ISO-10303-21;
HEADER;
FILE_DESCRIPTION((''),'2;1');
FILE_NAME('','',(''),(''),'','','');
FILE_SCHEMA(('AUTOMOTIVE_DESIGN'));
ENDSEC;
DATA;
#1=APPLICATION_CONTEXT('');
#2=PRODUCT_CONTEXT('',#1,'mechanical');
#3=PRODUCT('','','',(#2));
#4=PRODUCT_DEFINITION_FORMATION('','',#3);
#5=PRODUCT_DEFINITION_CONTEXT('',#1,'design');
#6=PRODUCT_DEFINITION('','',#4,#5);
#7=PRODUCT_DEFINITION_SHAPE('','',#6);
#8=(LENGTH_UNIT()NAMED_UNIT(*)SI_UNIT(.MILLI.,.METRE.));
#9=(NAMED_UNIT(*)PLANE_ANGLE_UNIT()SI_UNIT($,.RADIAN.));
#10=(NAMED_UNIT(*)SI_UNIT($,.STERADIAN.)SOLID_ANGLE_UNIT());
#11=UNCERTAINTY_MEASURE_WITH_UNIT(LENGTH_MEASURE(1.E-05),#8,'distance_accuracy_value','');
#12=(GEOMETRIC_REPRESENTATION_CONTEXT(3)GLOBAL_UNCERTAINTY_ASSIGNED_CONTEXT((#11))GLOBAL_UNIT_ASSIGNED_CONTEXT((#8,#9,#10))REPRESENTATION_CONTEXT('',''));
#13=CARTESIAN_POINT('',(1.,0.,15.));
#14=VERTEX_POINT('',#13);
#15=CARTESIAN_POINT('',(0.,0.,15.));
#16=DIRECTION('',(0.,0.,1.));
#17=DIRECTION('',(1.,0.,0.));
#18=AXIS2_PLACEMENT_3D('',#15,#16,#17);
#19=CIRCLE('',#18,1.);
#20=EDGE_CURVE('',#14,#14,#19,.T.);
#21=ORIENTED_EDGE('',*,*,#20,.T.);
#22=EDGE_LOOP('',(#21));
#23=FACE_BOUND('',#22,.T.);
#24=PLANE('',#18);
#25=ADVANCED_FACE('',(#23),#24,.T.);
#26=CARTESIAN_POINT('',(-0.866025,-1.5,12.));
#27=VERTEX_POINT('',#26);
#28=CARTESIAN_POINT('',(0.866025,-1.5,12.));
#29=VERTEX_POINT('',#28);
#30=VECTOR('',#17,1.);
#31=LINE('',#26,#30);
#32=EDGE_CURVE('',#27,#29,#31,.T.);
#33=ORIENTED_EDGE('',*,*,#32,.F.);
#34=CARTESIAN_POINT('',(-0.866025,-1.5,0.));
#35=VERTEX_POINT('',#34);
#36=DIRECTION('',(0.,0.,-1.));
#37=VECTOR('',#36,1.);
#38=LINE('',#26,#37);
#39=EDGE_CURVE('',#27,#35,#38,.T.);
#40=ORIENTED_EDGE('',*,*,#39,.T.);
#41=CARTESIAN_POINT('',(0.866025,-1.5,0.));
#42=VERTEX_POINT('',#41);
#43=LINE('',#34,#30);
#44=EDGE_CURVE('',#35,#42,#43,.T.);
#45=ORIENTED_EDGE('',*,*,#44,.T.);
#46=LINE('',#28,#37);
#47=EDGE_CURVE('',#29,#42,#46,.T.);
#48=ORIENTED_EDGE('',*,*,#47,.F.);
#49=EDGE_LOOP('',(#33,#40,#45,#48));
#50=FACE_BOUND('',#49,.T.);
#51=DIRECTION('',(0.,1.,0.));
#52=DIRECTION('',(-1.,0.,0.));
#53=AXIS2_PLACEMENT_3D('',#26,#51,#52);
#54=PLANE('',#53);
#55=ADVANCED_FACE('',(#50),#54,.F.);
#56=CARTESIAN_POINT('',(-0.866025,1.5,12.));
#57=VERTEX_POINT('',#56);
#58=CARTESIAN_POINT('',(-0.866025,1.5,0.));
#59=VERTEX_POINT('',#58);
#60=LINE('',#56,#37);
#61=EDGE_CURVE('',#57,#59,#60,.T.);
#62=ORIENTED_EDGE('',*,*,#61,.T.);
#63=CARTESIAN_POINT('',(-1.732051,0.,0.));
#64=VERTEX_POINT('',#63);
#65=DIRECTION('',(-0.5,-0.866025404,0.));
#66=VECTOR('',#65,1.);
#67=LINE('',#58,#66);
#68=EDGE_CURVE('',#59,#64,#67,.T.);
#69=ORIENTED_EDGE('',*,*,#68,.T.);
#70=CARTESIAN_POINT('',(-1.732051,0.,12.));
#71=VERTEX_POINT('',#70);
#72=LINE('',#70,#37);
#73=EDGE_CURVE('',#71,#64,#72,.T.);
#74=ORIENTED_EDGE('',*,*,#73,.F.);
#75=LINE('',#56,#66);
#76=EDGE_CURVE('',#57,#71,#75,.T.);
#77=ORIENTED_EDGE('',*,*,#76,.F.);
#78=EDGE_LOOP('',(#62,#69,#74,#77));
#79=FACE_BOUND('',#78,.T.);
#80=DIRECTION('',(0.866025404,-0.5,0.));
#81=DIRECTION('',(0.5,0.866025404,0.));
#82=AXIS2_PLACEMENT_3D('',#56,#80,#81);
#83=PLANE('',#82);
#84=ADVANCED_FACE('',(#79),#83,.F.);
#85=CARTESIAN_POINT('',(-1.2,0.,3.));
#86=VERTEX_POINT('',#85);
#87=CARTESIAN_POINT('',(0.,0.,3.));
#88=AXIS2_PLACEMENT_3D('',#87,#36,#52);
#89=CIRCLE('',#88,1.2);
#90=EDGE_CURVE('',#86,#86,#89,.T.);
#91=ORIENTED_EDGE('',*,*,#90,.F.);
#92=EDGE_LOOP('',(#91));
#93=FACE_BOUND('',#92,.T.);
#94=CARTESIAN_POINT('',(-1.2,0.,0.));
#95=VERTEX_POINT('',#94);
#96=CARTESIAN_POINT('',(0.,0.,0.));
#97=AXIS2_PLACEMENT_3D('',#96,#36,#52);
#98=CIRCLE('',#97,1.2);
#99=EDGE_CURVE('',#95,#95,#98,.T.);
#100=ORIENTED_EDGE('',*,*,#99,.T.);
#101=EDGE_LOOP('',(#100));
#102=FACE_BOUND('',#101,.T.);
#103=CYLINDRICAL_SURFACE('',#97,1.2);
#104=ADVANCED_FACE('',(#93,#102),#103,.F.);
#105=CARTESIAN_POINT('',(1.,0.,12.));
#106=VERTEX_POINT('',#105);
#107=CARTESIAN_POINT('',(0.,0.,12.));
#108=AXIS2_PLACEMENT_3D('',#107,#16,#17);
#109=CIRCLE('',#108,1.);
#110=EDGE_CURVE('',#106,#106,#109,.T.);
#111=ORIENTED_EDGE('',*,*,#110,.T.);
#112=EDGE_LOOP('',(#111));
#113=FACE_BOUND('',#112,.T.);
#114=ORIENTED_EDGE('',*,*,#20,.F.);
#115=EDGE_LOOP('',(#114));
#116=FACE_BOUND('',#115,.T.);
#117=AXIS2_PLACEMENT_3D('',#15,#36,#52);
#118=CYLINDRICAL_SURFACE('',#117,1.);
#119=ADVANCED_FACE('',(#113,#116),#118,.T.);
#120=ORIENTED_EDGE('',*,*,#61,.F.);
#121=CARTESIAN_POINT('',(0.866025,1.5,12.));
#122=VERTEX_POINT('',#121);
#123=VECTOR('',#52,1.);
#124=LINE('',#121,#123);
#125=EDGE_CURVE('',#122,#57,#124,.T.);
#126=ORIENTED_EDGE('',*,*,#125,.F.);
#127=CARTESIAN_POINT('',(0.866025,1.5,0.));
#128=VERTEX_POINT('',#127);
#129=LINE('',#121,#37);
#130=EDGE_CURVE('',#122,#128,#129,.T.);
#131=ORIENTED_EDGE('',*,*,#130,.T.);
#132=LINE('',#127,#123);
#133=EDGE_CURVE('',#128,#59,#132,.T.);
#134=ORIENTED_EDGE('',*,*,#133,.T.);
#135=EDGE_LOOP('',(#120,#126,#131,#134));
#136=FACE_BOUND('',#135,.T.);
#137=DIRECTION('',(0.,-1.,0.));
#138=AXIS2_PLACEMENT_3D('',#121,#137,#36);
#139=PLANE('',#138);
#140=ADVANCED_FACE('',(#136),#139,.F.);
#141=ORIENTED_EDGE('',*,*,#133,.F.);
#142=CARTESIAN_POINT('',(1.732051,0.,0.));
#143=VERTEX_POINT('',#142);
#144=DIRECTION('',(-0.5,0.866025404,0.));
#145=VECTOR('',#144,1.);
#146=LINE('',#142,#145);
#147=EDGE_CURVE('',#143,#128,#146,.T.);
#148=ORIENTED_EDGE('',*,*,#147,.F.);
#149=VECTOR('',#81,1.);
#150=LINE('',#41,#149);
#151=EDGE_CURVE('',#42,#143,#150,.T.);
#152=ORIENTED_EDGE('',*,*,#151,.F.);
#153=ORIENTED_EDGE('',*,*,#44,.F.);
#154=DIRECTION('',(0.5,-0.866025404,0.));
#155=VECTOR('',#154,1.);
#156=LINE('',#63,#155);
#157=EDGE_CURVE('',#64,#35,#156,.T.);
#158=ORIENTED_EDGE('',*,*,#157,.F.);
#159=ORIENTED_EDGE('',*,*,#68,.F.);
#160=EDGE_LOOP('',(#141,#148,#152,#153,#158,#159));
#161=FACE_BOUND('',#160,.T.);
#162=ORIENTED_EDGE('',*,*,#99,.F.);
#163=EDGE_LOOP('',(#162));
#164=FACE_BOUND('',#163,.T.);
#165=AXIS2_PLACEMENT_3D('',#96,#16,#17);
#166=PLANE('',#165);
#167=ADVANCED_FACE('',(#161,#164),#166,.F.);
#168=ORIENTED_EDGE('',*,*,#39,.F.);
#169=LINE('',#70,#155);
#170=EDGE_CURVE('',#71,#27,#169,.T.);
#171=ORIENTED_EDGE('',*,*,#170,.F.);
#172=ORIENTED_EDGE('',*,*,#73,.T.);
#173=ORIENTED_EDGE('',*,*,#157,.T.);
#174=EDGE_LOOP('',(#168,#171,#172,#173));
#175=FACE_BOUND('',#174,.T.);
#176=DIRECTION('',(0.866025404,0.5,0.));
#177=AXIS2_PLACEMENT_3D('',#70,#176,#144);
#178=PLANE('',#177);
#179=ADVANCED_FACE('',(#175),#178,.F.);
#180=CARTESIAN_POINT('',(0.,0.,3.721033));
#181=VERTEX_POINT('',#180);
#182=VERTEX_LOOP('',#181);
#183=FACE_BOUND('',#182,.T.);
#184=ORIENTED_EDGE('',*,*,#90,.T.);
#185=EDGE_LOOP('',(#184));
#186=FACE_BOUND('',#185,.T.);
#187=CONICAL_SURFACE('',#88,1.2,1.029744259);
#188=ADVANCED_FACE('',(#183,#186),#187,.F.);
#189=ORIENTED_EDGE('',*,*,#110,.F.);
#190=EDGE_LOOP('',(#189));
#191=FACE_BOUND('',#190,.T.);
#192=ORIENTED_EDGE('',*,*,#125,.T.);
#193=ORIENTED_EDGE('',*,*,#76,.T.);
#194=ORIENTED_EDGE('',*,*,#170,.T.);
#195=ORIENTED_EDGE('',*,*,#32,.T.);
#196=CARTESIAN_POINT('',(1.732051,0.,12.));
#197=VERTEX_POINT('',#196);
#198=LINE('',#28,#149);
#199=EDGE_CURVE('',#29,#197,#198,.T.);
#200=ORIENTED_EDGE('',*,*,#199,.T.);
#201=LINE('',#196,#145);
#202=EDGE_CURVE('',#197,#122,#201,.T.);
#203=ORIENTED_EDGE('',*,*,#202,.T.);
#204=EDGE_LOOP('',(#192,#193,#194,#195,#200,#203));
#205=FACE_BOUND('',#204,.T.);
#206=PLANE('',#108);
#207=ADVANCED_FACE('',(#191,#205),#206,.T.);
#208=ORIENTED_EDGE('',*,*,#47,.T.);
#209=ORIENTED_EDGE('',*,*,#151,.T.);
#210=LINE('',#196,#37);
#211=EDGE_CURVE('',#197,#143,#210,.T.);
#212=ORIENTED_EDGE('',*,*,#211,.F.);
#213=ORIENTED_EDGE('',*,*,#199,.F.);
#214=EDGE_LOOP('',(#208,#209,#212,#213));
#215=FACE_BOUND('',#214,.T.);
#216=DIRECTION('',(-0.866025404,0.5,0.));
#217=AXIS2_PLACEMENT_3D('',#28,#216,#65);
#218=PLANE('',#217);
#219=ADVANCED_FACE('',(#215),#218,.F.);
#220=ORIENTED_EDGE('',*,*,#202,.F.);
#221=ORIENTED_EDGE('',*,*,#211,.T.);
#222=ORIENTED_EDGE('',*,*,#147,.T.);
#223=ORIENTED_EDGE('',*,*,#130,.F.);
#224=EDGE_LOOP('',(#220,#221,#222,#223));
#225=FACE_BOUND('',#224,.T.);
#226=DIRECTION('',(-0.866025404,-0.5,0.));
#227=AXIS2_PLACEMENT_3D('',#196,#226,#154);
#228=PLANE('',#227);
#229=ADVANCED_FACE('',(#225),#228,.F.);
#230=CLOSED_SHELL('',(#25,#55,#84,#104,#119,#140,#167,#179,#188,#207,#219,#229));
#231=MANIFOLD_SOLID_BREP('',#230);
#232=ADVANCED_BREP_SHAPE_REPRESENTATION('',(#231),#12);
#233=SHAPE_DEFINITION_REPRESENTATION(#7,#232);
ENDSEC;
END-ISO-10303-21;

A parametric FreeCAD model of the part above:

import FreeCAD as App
import Part
import Sketcher
from FreeCAD import Vector
Q = App.Units.Quantity


def add_polygon(sketch, points):
    """Adds a closed chain of lines whose ends are joined by coincident constraints."""
    first, n = sketch.GeometryCount, len(points)
    for a, b in zip(points, points[1:] + points[:1]):
        sketch.addGeometry(Part.LineSegment(App.Vector(*a, 0), App.Vector(*b, 0)), False)
    for i in range(n):
        sketch.addConstraint(Sketcher.Constraint("Coincident", first + i, 2, first + (i + 1) % n, 1))

doc = App.newDocument("Part")
params = doc.addObject("Spreadsheet::Sheet", "Params")
for row, (alias, value) in enumerate([
    ("pad1_length", "12 mm"),
    ("sketch2_diameter", "2 mm"),
    ("pad2_length", "3 mm"),
    ("sketch3_diameter", "2.4 mm"),
    ("hole_diameter", "2.4 mm"),
    ("hole_depth", "3 mm"),
], start=1):
    params.set(f"A{row}", alias)
    params.set(f"B{row}", "=" + value)
    params.setAlias(f"B{row}", alias)

body = doc.addObject("PartDesign::Body", "Body")

sketch1 = body.newObject("Sketcher::SketchObject", "Sketch")
sketch1.AttachmentSupport = (doc.getObject("XY_Plane"), [""])
sketch1.MapMode = "FlatFace"
add_polygon(sketch1, [(0.866025, -1.5), (1.732051, 0), (0.866025, 1.5), (-0.866025, 1.5), (-1.732051, 0), (-0.866025, -1.5)])
sketch1.addConstraint(Sketcher.Constraint("Horizontal", 2))
sketch1.addConstraint(Sketcher.Constraint("Horizontal", 5))
sketch1.addConstraint(Sketcher.Constraint("Symmetric", 0, 2, 3, 2, -1, 1))
sketch1.addConstraint(Sketcher.Constraint("Symmetric", 1, 2, 4, 2, -1, 1))
sketch1.addConstraint(Sketcher.Constraint("PointOnObject", 0, 2, -1))
sketch1.addConstraint(Sketcher.Constraint("Parallel", 0, 3))
sketch1.addConstraint(Sketcher.Constraint("Vertical", 2, 2, 4, 2))
sketch1.addConstraint(Sketcher.Constraint("Angle", 0, Q("60 deg")))
sketch1.addConstraint(Sketcher.Constraint("DistanceY", 4, 2, 2, 2, Q("3 mm")))
sketch1.addConstraint(Sketcher.Constraint("DistanceX", 2, 2, 2, 1, Q("1.732051 mm")))
pad1 = body.newObject("PartDesign::Pad", "Pad")
pad1.Profile = sketch1
pad1.setExpression("Length", "Params.pad1_length")

sketch2 = body.newObject("Sketcher::SketchObject", "Sketch001")
sketch2.AttachmentSupport = (doc.getObject("XY_Plane"), [""])
sketch2.MapMode = "FlatFace"
sketch2.AttachmentOffset = App.Placement(Vector(0, 0, 12), App.Rotation())
sketch2.addGeometry(Part.Circle(Vector(0, 0, 0), Vector(0, 0, 1), 1), False)
sketch2.addConstraint(Sketcher.Constraint("Coincident", 0, 3, -1, 1))
sketch2.addConstraint(Sketcher.Constraint("Diameter", 0, Q("2 mm")))
sketch2.setExpression("Constraints[1]", "Params.sketch2_diameter")
pad2 = body.newObject("PartDesign::Pad", "Pad001")
pad2.Profile = sketch2
pad2.setExpression("Length", "Params.pad2_length")

sketch3 = body.newObject("Sketcher::SketchObject", "Sketch002")
sketch3.AttachmentSupport = (doc.getObject("XY_Plane"), [""])
sketch3.MapMode = "FlatFace"
sketch3.addGeometry(Part.Circle(Vector(0, 0, 0), Vector(0, 0, 1), 1.2), False)
sketch3.addConstraint(Sketcher.Constraint("Coincident", 0, 3, -1, 1))
sketch3.addConstraint(Sketcher.Constraint("Diameter", 0, Q("2.4 mm")))
sketch3.setExpression("Constraints[1]", "Params.sketch3_diameter")
doc.recompute()
hole = body.newObject("PartDesign::Hole", "Hole")
hole.Profile = sketch3
hole.ThreadType = "None"
hole.setExpression("Diameter", "Params.hole_diameter")
hole.DepthType = "Dimension"
hole.setExpression("Depth", "Params.hole_depth")
hole.DrillPoint = "Angled"
hole.DrillPointAngle = 118
hole.Reversed = True

doc.recompute()
